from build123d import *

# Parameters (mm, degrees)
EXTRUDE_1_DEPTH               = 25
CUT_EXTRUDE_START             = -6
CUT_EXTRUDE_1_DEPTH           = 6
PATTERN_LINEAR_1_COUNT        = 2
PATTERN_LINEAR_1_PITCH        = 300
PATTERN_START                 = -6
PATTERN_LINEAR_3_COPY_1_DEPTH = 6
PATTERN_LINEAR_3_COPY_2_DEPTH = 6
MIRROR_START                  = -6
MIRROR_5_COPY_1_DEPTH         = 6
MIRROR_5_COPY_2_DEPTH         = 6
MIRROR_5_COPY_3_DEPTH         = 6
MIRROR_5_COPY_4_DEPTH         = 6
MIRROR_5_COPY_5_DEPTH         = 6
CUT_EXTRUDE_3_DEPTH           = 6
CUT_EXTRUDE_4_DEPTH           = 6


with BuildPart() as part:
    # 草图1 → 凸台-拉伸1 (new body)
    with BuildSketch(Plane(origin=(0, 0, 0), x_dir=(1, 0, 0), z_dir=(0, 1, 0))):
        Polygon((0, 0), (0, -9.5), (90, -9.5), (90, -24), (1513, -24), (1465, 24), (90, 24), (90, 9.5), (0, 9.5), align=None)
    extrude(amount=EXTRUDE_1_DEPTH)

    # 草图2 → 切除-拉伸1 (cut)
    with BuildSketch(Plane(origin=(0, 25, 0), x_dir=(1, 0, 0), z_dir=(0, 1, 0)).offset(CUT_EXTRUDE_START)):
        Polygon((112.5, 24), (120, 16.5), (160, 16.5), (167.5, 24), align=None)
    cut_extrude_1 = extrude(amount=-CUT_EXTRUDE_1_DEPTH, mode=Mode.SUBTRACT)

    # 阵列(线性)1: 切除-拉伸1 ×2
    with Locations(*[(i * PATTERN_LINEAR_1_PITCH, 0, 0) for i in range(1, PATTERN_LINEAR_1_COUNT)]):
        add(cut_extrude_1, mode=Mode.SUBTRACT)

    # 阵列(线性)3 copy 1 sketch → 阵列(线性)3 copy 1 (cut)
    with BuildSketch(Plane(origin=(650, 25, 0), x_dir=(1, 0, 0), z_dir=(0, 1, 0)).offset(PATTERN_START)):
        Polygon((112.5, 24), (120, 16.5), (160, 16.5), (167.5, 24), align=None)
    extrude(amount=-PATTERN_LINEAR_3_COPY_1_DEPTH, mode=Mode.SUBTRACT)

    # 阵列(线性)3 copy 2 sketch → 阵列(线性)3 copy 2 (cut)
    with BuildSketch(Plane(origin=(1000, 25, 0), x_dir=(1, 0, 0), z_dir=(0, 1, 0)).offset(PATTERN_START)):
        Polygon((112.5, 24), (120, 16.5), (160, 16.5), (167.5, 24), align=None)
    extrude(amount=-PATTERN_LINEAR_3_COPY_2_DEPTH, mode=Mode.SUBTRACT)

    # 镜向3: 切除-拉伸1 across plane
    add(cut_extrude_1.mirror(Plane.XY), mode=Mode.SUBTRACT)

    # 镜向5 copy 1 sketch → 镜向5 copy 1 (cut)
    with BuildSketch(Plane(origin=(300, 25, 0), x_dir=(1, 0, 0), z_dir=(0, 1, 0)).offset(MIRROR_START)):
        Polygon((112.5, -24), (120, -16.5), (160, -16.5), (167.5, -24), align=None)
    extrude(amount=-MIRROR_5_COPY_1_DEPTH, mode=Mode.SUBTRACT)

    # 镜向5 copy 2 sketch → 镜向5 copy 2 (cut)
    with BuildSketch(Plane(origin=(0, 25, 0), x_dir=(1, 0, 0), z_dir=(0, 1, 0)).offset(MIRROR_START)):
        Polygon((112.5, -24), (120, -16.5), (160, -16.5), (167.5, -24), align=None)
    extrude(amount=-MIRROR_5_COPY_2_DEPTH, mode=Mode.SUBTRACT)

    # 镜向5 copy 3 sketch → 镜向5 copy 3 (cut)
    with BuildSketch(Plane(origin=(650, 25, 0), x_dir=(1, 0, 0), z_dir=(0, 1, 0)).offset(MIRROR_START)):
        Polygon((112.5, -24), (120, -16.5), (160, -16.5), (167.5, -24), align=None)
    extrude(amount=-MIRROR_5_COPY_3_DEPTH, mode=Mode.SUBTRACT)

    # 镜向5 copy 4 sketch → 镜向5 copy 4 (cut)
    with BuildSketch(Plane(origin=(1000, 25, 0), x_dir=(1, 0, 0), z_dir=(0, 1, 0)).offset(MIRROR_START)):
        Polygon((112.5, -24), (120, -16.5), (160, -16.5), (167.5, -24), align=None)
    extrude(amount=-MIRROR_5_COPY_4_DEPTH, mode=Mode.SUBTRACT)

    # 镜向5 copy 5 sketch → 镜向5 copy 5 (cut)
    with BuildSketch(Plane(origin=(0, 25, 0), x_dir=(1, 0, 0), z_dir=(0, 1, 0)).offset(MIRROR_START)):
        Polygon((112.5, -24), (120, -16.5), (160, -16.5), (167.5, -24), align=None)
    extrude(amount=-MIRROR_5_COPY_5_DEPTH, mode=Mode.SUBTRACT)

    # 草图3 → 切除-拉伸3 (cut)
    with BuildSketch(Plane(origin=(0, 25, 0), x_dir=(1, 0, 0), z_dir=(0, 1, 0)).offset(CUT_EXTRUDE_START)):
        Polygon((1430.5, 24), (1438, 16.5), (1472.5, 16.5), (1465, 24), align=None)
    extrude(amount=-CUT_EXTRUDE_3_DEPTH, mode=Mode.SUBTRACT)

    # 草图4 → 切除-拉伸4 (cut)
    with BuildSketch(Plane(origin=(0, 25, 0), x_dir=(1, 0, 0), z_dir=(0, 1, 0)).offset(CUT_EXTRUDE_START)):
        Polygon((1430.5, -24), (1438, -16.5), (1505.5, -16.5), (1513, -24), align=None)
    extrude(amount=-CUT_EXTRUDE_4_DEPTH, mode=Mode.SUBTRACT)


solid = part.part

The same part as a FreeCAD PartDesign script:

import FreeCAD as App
import Part
import Sketcher

V = App.Vector
Q = App.Units.Quantity

doc = App.newDocument("Part")
body = doc.addObject("PartDesign::Body", "Body")

sketch1 = body.newObject("Sketcher::SketchObject", "Sketch")
sketch1.AttachmentSupport = (doc.getObject("XZ_Plane"), [""])
sketch1.MapMode = "FlatFace"
sketch1.addGeometry(Part.LineSegment(V(0, 10, 0), V(90, 10, 0)), False)
sketch1.addGeometry(Part.LineSegment(V(90, 10, 0), V(90, 24, 0)), False)
sketch1.addGeometry(Part.LineSegment(V(90, 24, 0), V(1513, 24, 0)), False)
sketch1.addGeometry(Part.LineSegment(V(1513, 24, 0), V(1465, -24, 0)), False)
sketch1.addGeometry(Part.LineSegment(V(1465, -24, 0), V(90, -24, 0)), False)
sketch1.addGeometry(Part.LineSegment(V(90, -24, 0), V(90, -10, 0)), False)
sketch1.addGeometry(Part.LineSegment(V(90, -10, 0), V(0, -10, 0)), False)
sketch1.addGeometry(Part.LineSegment(V(0, -10, 0), V(0, 10, 0)), False)
sketch1.addConstraint(Sketcher.Constraint("Coincident", 0, 2, 1, 1))
sketch1.addConstraint(Sketcher.Constraint("Coincident", 1, 2, 2, 1))
sketch1.addConstraint(Sketcher.Constraint("Coincident", 2, 2, 3, 1))
sketch1.addConstraint(Sketcher.Constraint("Coincident", 3, 2, 4, 1))
sketch1.addConstraint(Sketcher.Constraint("Coincident", 4, 2, 5, 1))
sketch1.addConstraint(Sketcher.Constraint("Coincident", 5, 2, 6, 1))
sketch1.addConstraint(Sketcher.Constraint("Coincident", 6, 2, 7, 1))
sketch1.addConstraint(Sketcher.Constraint("Coincident", 7, 2, 0, 1))
sketch1.addConstraint(Sketcher.Constraint("Horizontal", 0))
sketch1.addConstraint(Sketcher.Constraint("Vertical", 1))
sketch1.addConstraint(Sketcher.Constraint("Horizontal", 2))
sketch1.addConstraint(Sketcher.Constraint("Horizontal", 4))
sketch1.addConstraint(Sketcher.Constraint("Vertical", 5))
sketch1.addConstraint(Sketcher.Constraint("Horizontal", 6))
sketch1.addConstraint(Sketcher.Constraint("Vertical", 7))
sketch1.addConstraint(Sketcher.Constraint("Symmetric", 6, 2, 7, 2, -1, 1))
sketch1.addConstraint(Sketcher.Constraint("Symmetric", 1, 2, 4, 2, -1))
sketch1.addConstraint(Sketcher.Constraint("DistanceX", 0, 1, 0, 2, 90.0))
sketch1.addConstraint(Sketcher.Constraint("DistanceX", 2, 1, 2, 2, 1423.0))
sketch1.addConstraint(Sketcher.Constraint("DistanceX", 4, 2, 4, 1, 1375.0))
sketch1.addConstraint(Sketcher.Constraint("DistanceY", 7, 1, 7, 2, 19.0))
sketch1.addConstraint(Sketcher.Constraint("Angle", 3, Q("-135 deg")))
pad1 = body.newObject("PartDesign::Pad", "Pad")
pad1.Profile = sketch1
pad1.Length = 25
pad1.Reversed = True

sketch2 = body.newObject("Sketcher::SketchObject", "Sketch001")
sketch2.AttachmentSupport = (doc.getObject("XZ_Plane"), [""])
sketch2.MapMode = "FlatFace"
sketch2.AttachmentOffset = App.Placement(V(0, 0, -19), App.Rotation())
sketch2.addGeometry(Part.LineSegment(V(112, -24, 0), V(120, -16, 0)), False)
sketch2.addGeometry(Part.LineSegment(V(120, -16, 0), V(160, -16, 0)), False)
sketch2.addGeometry(Part.LineSegment(V(160, -16, 0), V(168, -24, 0)), False)
sketch2.addGeometry(Part.LineSegment(V(168, -24, 0), V(112, -24, 0)), False)
sketch2.addConstraint(Sketcher.Constraint("Coincident", 0, 2, 1, 1))
sketch2.addConstraint(Sketcher.Constraint("Coincident", 1, 2, 2, 1))
sketch2.addConstraint(Sketcher.Constraint("Coincident", 2, 2, 3, 1))
sketch2.addConstraint(Sketcher.Constraint("Coincident", 3, 2, 0, 1))
sketch2.addConstraint(Sketcher.Constraint("Horizontal", 1))
sketch2.addConstraint(Sketcher.Constraint("Horizontal", 3))
sketch2.addConstraint(Sketcher.Constraint("Perpendicular", 0, 2))
sketch2.addConstraint(Sketcher.Constraint("Equal", 0, 2))
sketch2.addConstraint(Sketcher.Constraint("DistanceX", 1, 1, 1, 2, 40.0))
sketch2.addConstraint(Sketcher.Constraint("DistanceX", 3, 2, 3, 1, 55.0))
sketch2.addConstraint(Sketcher.Constraint("DistanceX", -1, 1, 0, 2, 120.0))
sketch2.addConstraint(Sketcher.Constraint("DistanceY", 2, 2, -1, 1, 24.0))
pocket1 = body.newObject("PartDesign::Pocket", "Pocket")
pocket1.Profile = sketch2
pocket1.Length = 6
pocket1.Reversed = True
doc.recompute()

linearpattern = body.newObject("PartDesign::LinearPattern", "LinearPattern")
linearpattern.Originals = [pocket1]
linearpattern.Direction = (doc.getObject("X_Axis"), [""])
linearpattern.Mode = "offset"
linearpattern.Offset = 300
linearpattern.Occurrences = 2
body.Tip = linearpattern

sketch3 = body.newObject("Sketcher::SketchObject", "Sketch002")
sketch3.AttachmentSupport = (doc.getObject("XZ_Plane"), [""])
sketch3.MapMode = "FlatFace"
sketch3.AttachmentOffset = App.Placement(V(0, 0, -19), App.Rotation())
sketch3.addGeometry(Part.LineSegment(V(762.5, -24, 0), V(770, -16.5, 0)), False)
sketch3.addGeometry(Part.LineSegment(V(770, -16.5, 0), V(810, -16.5, 0)), False)
sketch3.addGeometry(Part.LineSegment(V(810, -16.5, 0), V(817.5, -24, 0)), False)
sketch3.addGeometry(Part.LineSegment(V(817.5, -24, 0), V(762.5, -24, 0)), False)
sketch3.addConstraint(Sketcher.Constraint("Coincident", 0, 2, 1, 1))
sketch3.addConstraint(Sketcher.Constraint("Coincident", 1, 2, 2, 1))
sketch3.addConstraint(Sketcher.Constraint("Coincident", 2, 2, 3, 1))
sketch3.addConstraint(Sketcher.Constraint("Coincident", 3, 2, 0, 1))
sketch3.addConstraint(Sketcher.Constraint("Horizontal", 1))
sketch3.addConstraint(Sketcher.Constraint("Horizontal", 3))
sketch3.addConstraint(Sketcher.Constraint("Perpendicular", 0, 2))
sketch3.addConstraint(Sketcher.Constraint("Equal", 0, 2))
sketch3.addConstraint(Sketcher.Constraint("DistanceX", 1, 1, 1, 2, 40.0))
sketch3.addConstraint(Sketcher.Constraint("DistanceX", 3, 2, 3, 1, 55.0))
sketch3.addConstraint(Sketcher.Constraint("DistanceX", -1, 1, 0, 2, 770.0))
sketch3.addConstraint(Sketcher.Constraint("DistanceY", 2, 2, -1, 1, 24.0))
pocket2 = body.newObject("PartDesign::Pocket", "Pocket001")
pocket2.Profile = sketch3
pocket2.Length = 6
pocket2.Reversed = True

sketch4 = body.newObject("Sketcher::SketchObject", "Sketch003")
sketch4.AttachmentSupport = (doc.getObject("XZ_Plane"), [""])
sketch4.MapMode = "FlatFace"
sketch4.AttachmentOffset = App.Placement(V(0, 0, -19), App.Rotation())
sketch4.addGeometry(Part.LineSegment(V(1112, -24, 0), V(1120, -16, 0)), False)
sketch4.addGeometry(Part.LineSegment(V(1120, -16, 0), V(1160, -16, 0)), False)
sketch4.addGeometry(Part.LineSegment(V(1160, -16, 0), V(1168, -24, 0)), False)
sketch4.addGeometry(Part.LineSegment(V(1168, -24, 0), V(1112, -24, 0)), False)
sketch4.addConstraint(Sketcher.Constraint("Coincident", 0, 2, 1, 1))
sketch4.addConstraint(Sketcher.Constraint("Coincident", 1, 2, 2, 1))
sketch4.addConstraint(Sketcher.Constraint("Coincident", 2, 2, 3, 1))
sketch4.addConstraint(Sketcher.Constraint("Coincident", 3, 2, 0, 1))
sketch4.addConstraint(Sketcher.Constraint("Horizontal", 1))
sketch4.addConstraint(Sketcher.Constraint("Horizontal", 3))
sketch4.addConstraint(Sketcher.Constraint("Perpendicular", 0, 2))
sketch4.addConstraint(Sketcher.Constraint("Equal", 0, 2))
sketch4.addConstraint(Sketcher.Constraint("DistanceX", 1, 1, 1, 2, 40.0))
sketch4.addConstraint(Sketcher.Constraint("DistanceX", 3, 2, 3, 1, 55.0))
sketch4.addConstraint(Sketcher.Constraint("DistanceX", -1, 1, 0, 2, 1120.0))
sketch4.addConstraint(Sketcher.Constraint("DistanceY", 2, 2, -1, 1, 24.0))
pocket3 = body.newObject("PartDesign::Pocket", "Pocket002")
pocket3.Profile = sketch4
pocket3.Length = 6
pocket3.Reversed = True
doc.recompute()

mirrored = body.newObject("PartDesign::Mirrored", "Mirrored")
mirrored.Originals = [pocket1]
mirrored.MirrorPlane = (doc.getObject("XY_Plane"), [""])
body.Tip = mirrored

sketch5 = body.newObject("Sketcher::SketchObject", "Sketch004")
sketch5.AttachmentSupport = (doc.getObject("XZ_Plane"), [""])
sketch5.MapMode = "FlatFace"
sketch5.AttachmentOffset = App.Placement(V(0, 0, -19), App.Rotation())
sketch5.addGeometry(Part.LineSegment(V(420, 16, 0), V(412, 24, 0)), False)
sketch5.addGeometry(Part.LineSegment(V(412, 24, 0), V(468, 24, 0)), False)
sketch5.addGeometry(Part.LineSegment(V(468, 24, 0), V(460, 16, 0)), False)
sketch5.addGeometry(Part.LineSegment(V(460, 16, 0), V(420, 16, 0)), False)
sketch5.addConstraint(Sketcher.Constraint("Coincident", 0, 2, 1, 1))
sketch5.addConstraint(Sketcher.Constraint("Coincident", 1, 2, 2, 1))
sketch5.addConstraint(Sketcher.Constraint("Coincident", 2, 2, 3, 1))
sketch5.addConstraint(Sketcher.Constraint("Coincident", 3, 2, 0, 1))
sketch5.addConstraint(Sketcher.Constraint("Horizontal", 1))
sketch5.addConstraint(Sketcher.Constraint("Horizontal", 3))
sketch5.addConstraint(Sketcher.Constraint("Perpendicular", 0, 2))
sketch5.addConstraint(Sketcher.Constraint("Equal", 0, 2))
sketch5.addConstraint(Sketcher.Constraint("DistanceX", 1, 1, 1, 2, 55.0))
sketch5.addConstraint(Sketcher.Constraint("DistanceX", 3, 2, 3, 1, 40.0))
sketch5.addConstraint(Sketcher.Constraint("DistanceY", -1, 1, 0, 2, 24.0))
sketch5.addConstraint(Sketcher.Constraint("DistanceX", -1, 1, 2, 2, 460.0))
pocket4 = body.newObject("PartDesign::Pocket", "Pocket003")
pocket4.Profile = sketch5
pocket4.Length = 6
pocket4.Reversed = True

sketch6 = body.newObject("Sketcher::SketchObject", "Sketch005")
sketch6.AttachmentSupport = (doc.getObject("XZ_Plane"), [""])
sketch6.MapMode = "FlatFace"
sketch6.AttachmentOffset = App.Placement(V(0, 0, -19), App.Rotation())
sketch6.addGeometry(Part.LineSegment(V(120, 16.5, 0), V(112.5, 24, 0)), False)
sketch6.addGeometry(Part.LineSegment(V(112.5, 24, 0), V(167.5, 24, 0)), False)
sketch6.addGeometry(Part.LineSegment(V(167.5, 24, 0), V(160, 16.5, 0)), False)
sketch6.addGeometry(Part.LineSegment(V(160, 16.5, 0), V(120, 16.5, 0)), False)
sketch6.addConstraint(Sketcher.Constraint("Coincident", 0, 2, 1, 1))
sketch6.addConstraint(Sketcher.Constraint("Coincident", 1, 2, 2, 1))
sketch6.addConstraint(Sketcher.Constraint("Coincident", 2, 2, 3, 1))
sketch6.addConstraint(Sketcher.Constraint("Coincident", 3, 2, 0, 1))
sketch6.addConstraint(Sketcher.Constraint("Horizontal", 1))
sketch6.addConstraint(Sketcher.Constraint("Horizontal", 3))
sketch6.addConstraint(Sketcher.Constraint("Perpendicular", 0, 2))
sketch6.addConstraint(Sketcher.Constraint("Equal", 0, 2))
sketch6.addConstraint(Sketcher.Constraint("DistanceX", 1, 1, 1, 2, 55.0))
sketch6.addConstraint(Sketcher.Constraint("DistanceX", 3, 2, 3, 1, 40.0))
sketch6.addConstraint(Sketcher.Constraint("DistanceY", -1, 1, 0, 2, 24.0))
sketch6.addConstraint(Sketcher.Constraint("DistanceX", -1, 1, 2, 2, 160.0))
pocket5 = body.newObject("PartDesign::Pocket", "Pocket004")
pocket5.Profile = sketch6
pocket5.Length = 6
pocket5.Reversed = True

sketch7 = body.newObject("Sketcher::SketchObject", "Sketch006")
sketch7.AttachmentSupport = (doc.getObject("XZ_Plane"), [""])
sketch7.MapMode = "FlatFace"
sketch7.AttachmentOffset = App.Placement(V(0, 0, -19), App.Rotation())
sketch7.addGeometry(Part.LineSegment(V(770, 16.5, 0), V(762.5, 24, 0)), False)
sketch7.addGeometry(Part.LineSegment(V(762.5, 24, 0), V(817.5, 24, 0)), False)
sketch7.addGeometry(Part.LineSegment(V(817.5, 24, 0), V(810, 16.5, 0)), False)
sketch7.addGeometry(Part.LineSegment(V(810, 16.5, 0), V(770, 16.5, 0)), False)
sketch7.addConstraint(Sketcher.Constraint("Coincident", 0, 2, 1, 1))
sketch7.addConstraint(Sketcher.Constraint("Coincident", 1, 2, 2, 1))
sketch7.addConstraint(Sketcher.Constraint("Coincident", 2, 2, 3, 1))
sketch7.addConstraint(Sketcher.Constraint("Coincident", 3, 2, 0, 1))
sketch7.addConstraint(Sketcher.Constraint("Horizontal", 1))
sketch7.addConstraint(Sketcher.Constraint("Horizontal", 3))
sketch7.addConstraint(Sketcher.Constraint("Perpendicular", 0, 2))
sketch7.addConstraint(Sketcher.Constraint("Equal", 0, 2))
sketch7.addConstraint(Sketcher.Constraint("DistanceX", 1, 1, 1, 2, 55.0))
sketch7.addConstraint(Sketcher.Constraint("DistanceX", 3, 2, 3, 1, 40.0))
sketch7.addConstraint(Sketcher.Constraint("DistanceY", -1, 1, 0, 2, 24.0))
sketch7.addConstraint(Sketcher.Constraint("DistanceX", -1, 1, 2, 2, 810.0))
pocket6 = body.newObject("PartDesign::Pocket", "Pocket005")
pocket6.Profile = sketch7
pocket6.Length = 6
pocket6.Reversed = True

sketch8 = body.newObject("Sketcher::SketchObject", "Sketch007")
sketch8.AttachmentSupport = (doc.getObject("XZ_Plane"), [""])
sketch8.MapMode = "FlatFace"
sketch8.AttachmentOffset = App.Placement(V(0, 0, -19), App.Rotation())
sketch8.addGeometry(Part.LineSegment(V(1120, 16, 0), V(1112, 24, 0)), False)
sketch8.addGeometry(Part.LineSegment(V(1112, 24, 0), V(1168, 24, 0)), False)
sketch8.addGeometry(Part.LineSegment(V(1168, 24, 0), V(1160, 16, 0)), False)
sketch8.addGeometry(Part.LineSegment(V(1160, 16, 0), V(1120, 16, 0)), False)
sketch8.addConstraint(Sketcher.Constraint("Coincident", 0, 2, 1, 1))
sketch8.addConstraint(Sketcher.Constraint("Coincident", 1, 2, 2, 1))
sketch8.addConstraint(Sketcher.Constraint("Coincident", 2, 2, 3, 1))
sketch8.addConstraint(Sketcher.Constraint("Coincident", 3, 2, 0, 1))
sketch8.addConstraint(Sketcher.Constraint("Horizontal", 1))
sketch8.addConstraint(Sketcher.Constraint("Horizontal", 3))
sketch8.addConstraint(Sketcher.Constraint("Perpendicular", 0, 2))
sketch8.addConstraint(Sketcher.Constraint("Equal", 0, 2))
sketch8.addConstraint(Sketcher.Constraint("DistanceX", 1, 1, 1, 2, 55.0))
sketch8.addConstraint(Sketcher.Constraint("DistanceX", 3, 2, 3, 1, 40.0))
sketch8.addConstraint(Sketcher.Constraint("DistanceY", -1, 1, 0, 2, 24.0))
sketch8.addConstraint(Sketcher.Constraint("DistanceX", -1, 1, 2, 2, 1160.0))
pocket7 = body.newObject("PartDesign::Pocket", "Pocket006")
pocket7.Profile = sketch8
pocket7.Length = 6
pocket7.Reversed = True

sketch9 = body.newObject("Sketcher::SketchObject", "Sketch008")
sketch9.AttachmentSupport = (doc.getObject("XZ_Plane"), [""])
sketch9.MapMode = "FlatFace"
sketch9.AttachmentOffset = App.Placement(V(0, 0, -19), App.Rotation())
sketch9.addGeometry(Part.LineSegment(V(120, 16, 0), V(112, 24, 0)), False)
sketch9.addGeometry(Part.LineSegment(V(112, 24, 0), V(168, 24, 0)), False)
sketch9.addGeometry(Part.LineSegment(V(168, 24, 0), V(160, 16, 0)), False)
sketch9.addGeometry(Part.LineSegment(V(160, 16, 0), V(120, 16, 0)), False)
sketch9.addConstraint(Sketcher.Constraint("Coincident", 0, 2, 1, 1))
sketch9.addConstraint(Sketcher.Constraint("Coincident", 1, 2, 2, 1))
sketch9.addConstraint(Sketcher.Constraint("Coincident", 2, 2, 3, 1))
sketch9.addConstraint(Sketcher.Constraint("Coincident", 3, 2, 0, 1))
sketch9.addConstraint(Sketcher.Constraint("Horizontal", 1))
sketch9.addConstraint(Sketcher.Constraint("Horizontal", 3))
sketch9.addConstraint(Sketcher.Constraint("Perpendicular", 0, 2))
sketch9.addConstraint(Sketcher.Constraint("Equal", 0, 2))
sketch9.addConstraint(Sketcher.Constraint("DistanceX", 1, 1, 1, 2, 55.0))
sketch9.addConstraint(Sketcher.Constraint("DistanceX", 3, 2, 3, 1, 40.0))
sketch9.addConstraint(Sketcher.Constraint("DistanceY", -1, 1, 0, 2, 24.0))
sketch9.addConstraint(Sketcher.Constraint("DistanceX", -1, 1, 2, 2, 160.0))
pocket8 = body.newObject("PartDesign::Pocket", "Pocket007")
pocket8.Profile = sketch9
pocket8.Length = 6
pocket8.Reversed = True

sketch10 = body.newObject("Sketcher::SketchObject", "Sketch009")
sketch10.AttachmentSupport = (doc.getObject("XZ_Plane"), [""])
sketch10.MapMode = "FlatFace"
sketch10.AttachmentOffset = App.Placement(V(0, 0, -19), App.Rotation())
sketch10.addGeometry(Part.LineSegment(V(1430, -24, 0), V(1438, -16, 0)), False)
sketch10.addGeometry(Part.LineSegment(V(1438, -16, 0), V(1472, -16, 0)), False)
sketch10.addGeometry(Part.LineSegment(V(1472, -16, 0), V(1465, -24, 0)), False)
sketch10.addGeometry(Part.LineSegment(V(1465, -24, 0), V(1430, -24, 0)), False)
sketch10.addConstraint(Sketcher.Constraint("Coincident", 0, 2, 1, 1))
sketch10.addConstraint(Sketcher.Constraint("Coincident", 1, 2, 2, 1))
sketch10.addConstraint(Sketcher.Constraint("Coincident", 2, 2, 3, 1))
sketch10.addConstraint(Sketcher.Constraint("Coincident", 3, 2, 0, 1))
sketch10.addConstraint(Sketcher.Constraint("Horizontal", 1))
sketch10.addConstraint(Sketcher.Constraint("Horizontal", 3))
sketch10.addConstraint(Sketcher.Constraint("Parallel", 0, 2))
sketch10.addConstraint(Sketcher.Constraint("Angle", 0, Q("45 deg")))
sketch10.addConstraint(Sketcher.Constraint("DistanceX", 1, 1, 1, 2, 34.5))
sketch10.addConstraint(Sketcher.Constraint("DistanceX", -1, 1, 0, 2, 1438.0))
sketch10.addConstraint(Sketcher.Constraint("DistanceX", -1, 1, 2, 2, 1465.0))
sketch10.addConstraint(Sketcher.Constraint("DistanceY", 2, 2, -1, 1, 24.0))
pocket9 = body.newObject("PartDesign::Pocket", "Pocket008")
pocket9.Profile = sketch10
pocket9.Length = 6
pocket9.Reversed = True

sketch11 = body.newObject("Sketcher::SketchObject", "Sketch010")
sketch11.AttachmentSupport = (doc.getObject("XZ_Plane"), [""])
sketch11.MapMode = "FlatFace"
sketch11.AttachmentOffset = App.Placement(V(0, 0, -19), App.Rotation())
sketch11.addGeometry(Part.LineSegment(V(1438, 16, 0), V(1430, 24, 0)), False)
sketch11.addGeometry(Part.LineSegment(V(1430, 24, 0), V(1513, 24, 0)), False)
sketch11.addGeometry(Part.LineSegment(V(1513, 24, 0), V(1506, 16, 0)), False)
sketch11.addGeometry(Part.LineSegment(V(1506, 16, 0), V(1438, 16, 0)), False)
sketch11.addConstraint(Sketcher.Constraint("Coincident", 0, 2, 1, 1))
sketch11.addConstraint(Sketcher.Constraint("Coincident", 1, 2, 2, 1))
sketch11.addConstraint(Sketcher.Constraint("Coincident", 2, 2, 3, 1))
sketch11.addConstraint(Sketcher.Constraint("Coincident", 3, 2, 0, 1))
sketch11.addConstraint(Sketcher.Constraint("Horizontal", 1))
sketch11.addConstraint(Sketcher.Constraint("Horizontal", 3))
sketch11.addConstraint(Sketcher.Constraint("Perpendicular", 0, 2))
sketch11.addConstraint(Sketcher.Constraint("Equal", 0, 2))
sketch11.addConstraint(Sketcher.Constraint("DistanceX", 1, 1, 1, 2, 82.5))
sketch11.addConstraint(Sketcher.Constraint("DistanceX", 3, 2, 3, 1, 67.5))
sketch11.addConstraint(Sketcher.Constraint("DistanceY", -1, 1, 0, 2, 24.0))
sketch11.addConstraint(Sketcher.Constraint("DistanceX", -1, 1, 1, 2, 1513.0))
pocket10 = body.newObject("PartDesign::Pocket", "Pocket009")
pocket10.Profile = sketch11
pocket10.Length = 6
pocket10.Reversed = True

doc.recompute()
